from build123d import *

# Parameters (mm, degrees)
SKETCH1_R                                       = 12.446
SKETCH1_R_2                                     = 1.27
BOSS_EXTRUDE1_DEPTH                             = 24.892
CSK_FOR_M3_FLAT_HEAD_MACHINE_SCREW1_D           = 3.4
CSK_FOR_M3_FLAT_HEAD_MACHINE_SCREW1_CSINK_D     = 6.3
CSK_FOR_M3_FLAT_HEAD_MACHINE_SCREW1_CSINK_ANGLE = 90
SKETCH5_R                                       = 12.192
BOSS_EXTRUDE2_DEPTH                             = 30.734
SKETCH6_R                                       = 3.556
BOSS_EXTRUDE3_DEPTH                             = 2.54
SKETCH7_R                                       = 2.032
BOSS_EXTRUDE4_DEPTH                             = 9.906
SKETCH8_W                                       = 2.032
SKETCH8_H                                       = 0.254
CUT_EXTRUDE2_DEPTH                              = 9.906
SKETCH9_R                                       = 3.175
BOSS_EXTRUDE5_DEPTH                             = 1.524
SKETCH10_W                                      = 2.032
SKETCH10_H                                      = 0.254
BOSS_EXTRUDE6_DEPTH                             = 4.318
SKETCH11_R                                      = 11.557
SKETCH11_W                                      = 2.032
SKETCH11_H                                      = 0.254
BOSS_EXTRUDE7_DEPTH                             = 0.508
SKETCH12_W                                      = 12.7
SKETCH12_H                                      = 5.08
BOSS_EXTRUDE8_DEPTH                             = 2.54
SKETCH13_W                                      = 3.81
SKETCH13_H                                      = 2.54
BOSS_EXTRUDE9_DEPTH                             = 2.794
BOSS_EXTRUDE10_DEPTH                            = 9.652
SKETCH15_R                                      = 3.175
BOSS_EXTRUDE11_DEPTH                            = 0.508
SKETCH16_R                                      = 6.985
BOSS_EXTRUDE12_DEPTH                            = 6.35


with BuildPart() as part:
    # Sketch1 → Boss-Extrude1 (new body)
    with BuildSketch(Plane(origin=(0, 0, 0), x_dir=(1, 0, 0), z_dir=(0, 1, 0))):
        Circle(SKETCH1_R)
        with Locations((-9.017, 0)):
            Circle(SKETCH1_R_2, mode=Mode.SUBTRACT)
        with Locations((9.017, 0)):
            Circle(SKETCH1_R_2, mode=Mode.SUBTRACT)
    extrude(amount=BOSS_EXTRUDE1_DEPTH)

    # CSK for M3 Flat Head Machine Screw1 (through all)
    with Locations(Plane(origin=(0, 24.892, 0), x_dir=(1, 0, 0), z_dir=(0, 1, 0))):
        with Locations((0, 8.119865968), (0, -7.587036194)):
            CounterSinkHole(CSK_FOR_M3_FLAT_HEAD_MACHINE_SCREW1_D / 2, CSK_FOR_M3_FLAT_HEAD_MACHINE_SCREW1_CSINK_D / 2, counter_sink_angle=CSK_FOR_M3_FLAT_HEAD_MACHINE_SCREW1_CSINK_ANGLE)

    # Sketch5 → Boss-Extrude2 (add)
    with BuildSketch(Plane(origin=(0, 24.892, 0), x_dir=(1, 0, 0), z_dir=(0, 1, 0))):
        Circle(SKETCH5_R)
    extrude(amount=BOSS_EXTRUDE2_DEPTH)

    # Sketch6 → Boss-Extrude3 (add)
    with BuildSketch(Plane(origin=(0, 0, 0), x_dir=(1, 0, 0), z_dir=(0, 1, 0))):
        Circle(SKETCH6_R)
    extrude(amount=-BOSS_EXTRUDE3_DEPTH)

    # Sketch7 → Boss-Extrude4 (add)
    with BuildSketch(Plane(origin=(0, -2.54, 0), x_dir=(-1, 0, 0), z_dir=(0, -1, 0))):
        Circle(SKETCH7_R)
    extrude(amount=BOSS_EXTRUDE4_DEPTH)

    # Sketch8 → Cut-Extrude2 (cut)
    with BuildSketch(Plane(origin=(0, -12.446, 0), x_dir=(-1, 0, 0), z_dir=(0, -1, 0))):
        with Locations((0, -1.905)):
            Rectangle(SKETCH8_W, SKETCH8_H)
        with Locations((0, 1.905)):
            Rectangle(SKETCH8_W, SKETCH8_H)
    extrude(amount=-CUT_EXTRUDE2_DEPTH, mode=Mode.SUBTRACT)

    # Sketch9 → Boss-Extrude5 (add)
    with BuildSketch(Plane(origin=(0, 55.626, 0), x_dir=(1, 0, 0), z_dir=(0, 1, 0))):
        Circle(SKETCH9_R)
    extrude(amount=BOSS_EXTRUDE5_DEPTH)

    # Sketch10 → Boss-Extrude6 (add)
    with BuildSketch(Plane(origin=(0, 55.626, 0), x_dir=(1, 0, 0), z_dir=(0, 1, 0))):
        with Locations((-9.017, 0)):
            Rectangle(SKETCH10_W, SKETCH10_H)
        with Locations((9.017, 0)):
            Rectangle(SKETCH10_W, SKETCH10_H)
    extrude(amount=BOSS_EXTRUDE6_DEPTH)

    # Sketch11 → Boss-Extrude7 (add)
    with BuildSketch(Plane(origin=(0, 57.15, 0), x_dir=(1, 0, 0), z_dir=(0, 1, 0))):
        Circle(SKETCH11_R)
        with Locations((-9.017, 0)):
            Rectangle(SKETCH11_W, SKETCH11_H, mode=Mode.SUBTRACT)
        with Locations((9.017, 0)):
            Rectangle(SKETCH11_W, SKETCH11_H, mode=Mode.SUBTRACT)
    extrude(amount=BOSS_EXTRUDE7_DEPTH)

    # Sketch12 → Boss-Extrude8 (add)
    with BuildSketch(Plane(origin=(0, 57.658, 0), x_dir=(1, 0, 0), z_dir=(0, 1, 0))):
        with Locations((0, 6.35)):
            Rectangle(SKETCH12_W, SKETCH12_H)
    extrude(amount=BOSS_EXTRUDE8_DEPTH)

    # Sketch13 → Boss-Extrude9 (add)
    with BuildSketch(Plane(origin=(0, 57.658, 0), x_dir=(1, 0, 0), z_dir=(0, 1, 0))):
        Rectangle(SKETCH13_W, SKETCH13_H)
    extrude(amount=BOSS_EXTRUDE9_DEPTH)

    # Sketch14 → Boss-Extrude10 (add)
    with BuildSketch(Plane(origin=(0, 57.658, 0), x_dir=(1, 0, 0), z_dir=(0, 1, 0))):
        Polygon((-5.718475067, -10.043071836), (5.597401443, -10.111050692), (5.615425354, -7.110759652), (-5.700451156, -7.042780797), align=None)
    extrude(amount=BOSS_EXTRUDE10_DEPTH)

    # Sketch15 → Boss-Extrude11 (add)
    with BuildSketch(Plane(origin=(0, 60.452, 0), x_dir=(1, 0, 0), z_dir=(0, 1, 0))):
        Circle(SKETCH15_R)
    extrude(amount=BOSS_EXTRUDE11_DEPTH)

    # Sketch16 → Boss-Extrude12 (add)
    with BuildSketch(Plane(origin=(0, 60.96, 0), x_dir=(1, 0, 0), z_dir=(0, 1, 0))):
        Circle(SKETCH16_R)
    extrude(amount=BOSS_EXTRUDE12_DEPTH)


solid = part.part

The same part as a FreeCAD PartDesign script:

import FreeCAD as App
import Part
import Sketcher

V = App.Vector
Q = App.Units.Quantity


def add_polygon(sketch, points):
    """Adds a closed chain of lines whose ends are joined by coincident constraints."""
    first, n = sketch.GeometryCount, len(points)
    for a, b in zip(points, points[1:] + points[:1]):
        sketch.addGeometry(Part.LineSegment(App.Vector(*a, 0), App.Vector(*b, 0)), False)
    for i in range(n):
        sketch.addConstraint(Sketcher.Constraint("Coincident", first + i, 2, first + (i + 1) % n, 1))

doc = App.newDocument("Part")
params = doc.addObject("Spreadsheet::Sheet", "Params")
for row, (alias, value) in enumerate([
    ("sketch1_diameter", "0.1 in"),
    ("sketch1_diameter2", "0.98 in"),
    ("pad1_length", "0.98 in"),
    ("hole_diameter", "3.4 mm"),
    ("hole_csink_diameter", "6.3 mm"),
    ("sketch3_diameter", "0.96 in"),
    ("pad2_length", "1.21 in"),
    ("sketch4_diameter", "0.28 in"),
    ("pad3_length", "0.1 in"),
    ("sketch5_diameter", "0.16 in"),
    ("pad4_length", "0.39 in"),
    ("sketch6_width", "0.08 in"),
    ("sketch6_height", "0.01 in"),
    ("pocket1_length", "0.39 in"),
    ("sketch7_diameter", "0.25 in"),
    ("pad5_length", "0.06 in"),
    ("sketch8_width", "0.08 in"),
    ("sketch8_height", "0.01 in"),
    ("pad6_length", "0.17 in"),
    ("sketch9_diameter", "0.91 in"),
    ("sketch9_width", "0.08 in"),
    ("sketch9_height", "0.01 in"),
    ("pad7_length", "0.02 in"),
    ("sketch10_width", "0.5 in"),
    ("sketch10_height", "0.2 in"),
    ("pad8_length", "0.1 in"),
    ("sketch11_height", "0.1 in"),
    ("sketch11_width", "0.15 in"),
    ("pad9_length", "0.11 in"),
    ("pad10_length", "0.38 in"),
    ("sketch13_diameter", "0.25 in"),
    ("pad11_length", "0.02 in"),
    ("sketch14_diameter", "0.55 in"),
    ("pad12_length", "0.25 in"),
], start=1):
    params.set(f"A{row}", alias)
    params.set(f"B{row}", "=" + value)
    params.setAlias(f"B{row}", alias)

body = doc.addObject("PartDesign::Body", "Body")

# Sketch on XZ plane
sketch1 = body.newObject("Sketcher::SketchObject", "Sketch")
sketch1.AttachmentSupport = (doc.getObject("XZ_Plane"), [""])
sketch1.MapMode = "FlatFace"
sketch1.addGeometry([
    Part.Circle(V(0, 0, 0), V(0, 0, 1), 12.4),
    Part.Circle(V(-9, 0, 0), V(0, 0, 1), 1.3),
    Part.Circle(V(9, 0, 0), V(0, 0, 1), 1.3),
], False)
sketch1.addConstraint([
    Sketcher.Constraint("Coincident", 0, 3, -1, 1),
    Sketcher.Constraint("Equal", 1, 2),
    Sketcher.Constraint("Symmetric", 1, 3, 2, 3, -1, 1),
    Sketcher.Constraint("PointOnObject", 1, 3, -1),
    Sketcher.Constraint("Diameter", 1, Q("0.1 in")),
    Sketcher.Constraint("Diameter", 0, Q("0.98 in")),
    Sketcher.Constraint("DistanceX", 1, 3, 2, 3, Q("0.71 in")),
])
sketch1.setExpression("Constraints[4]", "Params.sketch1_diameter")
sketch1.setExpression("Constraints[5]", "Params.sketch1_diameter2")
pad1 = body.newObject("PartDesign::Pad", "Pad")
pad1.Profile = sketch1
pad1.setExpression("Length", "Params.pad1_length")
pad1.Reversed = True

# Sketch on XZ plane
sketch2 = body.newObject("Sketcher::SketchObject", "Sketch001")
sketch2.AttachmentSupport = (doc.getObject("XZ_Plane"), [""])
sketch2.MapMode = "FlatFace"
sketch2.AttachmentOffset = App.Placement(V(0, 0, -0.98 * 25.4), App.Rotation())
sketch2.addGeometry([
    Part.Circle(V(0, -8.1, 0), V(0, 0, 1), 1.7),
    Part.Circle(V(0, 7.6, 0), V(0, 0, 1), 1.7),
], False)
sketch2.addConstraint([
    Sketcher.Constraint("Equal", 0, 1),
    Sketcher.Constraint("PointOnObject", 0, 3, -2),
    Sketcher.Constraint("PointOnObject", 1, 3, -2),
    Sketcher.Constraint("Diameter", 0, Q("3.4 mm")),
    Sketcher.Constraint("DistanceY", 0, 3, -1, 1, Q("8.119866 mm")),
    Sketcher.Constraint("DistanceY", -1, 1, 1, 3, Q("7.587036 mm")),
])
doc.recompute()
hole = body.newObject("PartDesign::Hole", "Hole")
hole.Profile = sketch2
hole.ThreadType = "None"
hole.setExpression("Diameter", "Params.hole_diameter")
hole.DepthType = "ThroughAll"
hole.HoleCutType = "Countersink"
hole.setExpression("HoleCutDiameter", "Params.hole_csink_diameter")
hole.HoleCutCountersinkAngle = 90
hole.Reversed = True

# Sketch on XZ plane
sketch3 = body.newObject("Sketcher::SketchObject", "Sketch002")
sketch3.AttachmentSupport = (doc.getObject("XZ_Plane"), [""])
sketch3.MapMode = "FlatFace"
sketch3.AttachmentOffset = App.Placement(V(0, 0, -0.98 * 25.4), App.Rotation())
sketch3.addGeometry(Part.Circle(V(0, 0, 0), V(0, 0, 1), 12), False)
sketch3.addConstraint([
    Sketcher.Constraint("Coincident", 0, 3, -1, 1),
    Sketcher.Constraint("Diameter", 0, Q("0.96 in")),
])
sketch3.setExpression("Constraints[1]", "Params.sketch3_diameter")
pad2 = body.newObject("PartDesign::Pad", "Pad001")
pad2.Profile = sketch3
pad2.setExpression("Length", "Params.pad2_length")
pad2.Reversed = True

# Sketch on XZ plane
sketch4 = body.newObject("Sketcher::SketchObject", "Sketch003")
sketch4.AttachmentSupport = (doc.getObject("XZ_Plane"), [""])
sketch4.MapMode = "FlatFace"
sketch4.addGeometry(Part.Circle(V(0, 0, 0), V(0, 0, 1), 3.6), False)
sketch4.addConstraint([
    Sketcher.Constraint("Coincident", 0, 3, -1, 1),
    Sketcher.Constraint("Diameter", 0, Q("0.28 in")),
])
sketch4.setExpression("Constraints[1]", "Params.sketch4_diameter")
pad3 = body.newObject("PartDesign::Pad", "Pad002")
pad3.Profile = sketch4
pad3.setExpression("Length", "Params.pad3_length")

# Sketch on XZ plane
sketch5 = body.newObject("Sketcher::SketchObject", "Sketch004")
sketch5.AttachmentSupport = (doc.getObject("XZ_Plane"), [""])
sketch5.MapMode = "FlatFace"
sketch5.AttachmentOffset = App.Placement(V(0, 0, 0.1 * 25.4), App.Rotation())
sketch5.addGeometry(Part.Circle(V(0, 0, 0), V(0, 0, 1), 2), False)
sketch5.addConstraint([
    Sketcher.Constraint("Coincident", 0, 3, -1, 1),
    Sketcher.Constraint("Diameter", 0, Q("0.16 in")),
])
sketch5.setExpression("Constraints[1]", "Params.sketch5_diameter")
pad4 = body.newObject("PartDesign::Pad", "Pad003")
pad4.Profile = sketch5
pad4.setExpression("Length", "Params.pad4_length")

# Sketch on XZ plane
sketch6 = body.newObject("Sketcher::SketchObject", "Sketch005")
sketch6.AttachmentSupport = (doc.getObject("XZ_Plane"), [""])
sketch6.MapMode = "FlatFace"
sketch6.AttachmentOffset = App.Placement(V(0, 0, 0.49 * 25.4), App.Rotation())
add_polygon(sketch6, [(1.02, 1.78), (1.02, 2.03), (-1.02, 2.03), (-1.02, 1.78)])  # lines 0-3
add_polygon(sketch6, [(1.02, -2.03), (1.02, -1.78), (-1.02, -1.78), (-1.02, -2.03)])  # lines 4-7
sketch6.addConstraint([
    Sketcher.Constraint("Vertical", 0),
    Sketcher.Constraint("Horizontal", 1),
    Sketcher.Constraint("Vertical", 2),
    Sketcher.Constraint("Horizontal", 3),
    Sketcher.Constraint("Vertical", 4),
    Sketcher.Constraint("Horizontal", 5),
    Sketcher.Constraint("Vertical", 6),
    Sketcher.Constraint("Horizontal", 7),
    Sketcher.Constraint("Symmetric", 2, 2, 4, 2, -1, 1),
    Sketcher.Constraint("Symmetric", 0, 2, 6, 2, -1, 1),
    Sketcher.Constraint("Vertical", 3, 2, 4, 2),
    Sketcher.Constraint("DistanceX", 1, 2, 1, 1, Q("0.08 in")),
    Sketcher.Constraint("DistanceY", 0, 1, 0, 2, Q("0.01 in")),
    Sketcher.Constraint("DistanceY", -1, 1, 0, 2, Q("0.08 in")),
])
sketch6.setExpression("Constraints[19]", "Params.sketch6_width")
sketch6.setExpression("Constraints[20]", "Params.sketch6_height")
pocket1 = body.newObject("PartDesign::Pocket", "Pocket")
pocket1.Profile = sketch6
pocket1.setExpression("Length", "Params.pocket1_length")

# Sketch on XZ plane
sketch7 = body.newObject("Sketcher::SketchObject", "Sketch006")
sketch7.AttachmentSupport = (doc.getObject("XZ_Plane"), [""])
sketch7.MapMode = "FlatFace"
sketch7.AttachmentOffset = App.Placement(V(0, 0, -2.19 * 25.4), App.Rotation())
sketch7.addGeometry(Part.Circle(V(0, 0, 0), V(0, 0, 1), 3.2), False)
sketch7.addConstraint([
    Sketcher.Constraint("Coincident", 0, 3, -1, 1),
    Sketcher.Constraint("Diameter", 0, Q("0.25 in")),
])
sketch7.setExpression("Constraints[1]", "Params.sketch7_diameter")
pad5 = body.newObject("PartDesign::Pad", "Pad004")
pad5.Profile = sketch7
pad5.setExpression("Length", "Params.pad5_length")
pad5.Reversed = True

# Sketch on XZ plane
sketch8 = body.newObject("Sketcher::SketchObject", "Sketch007")
sketch8.AttachmentSupport = (doc.getObject("XZ_Plane"), [""])
sketch8.MapMode = "FlatFace"
sketch8.AttachmentOffset = App.Placement(V(0, 0, -2.19 * 25.4), App.Rotation())
add_polygon(sketch8, [(-10.03, -0.13), (-10.03, 0.13), (-8, 0.13), (-8, -0.13)])  # lines 0-3
add_polygon(sketch8, [(8, -0.13), (8, 0.13), (10.03, 0.13), (10.03, -0.13)])  # lines 4-7
sketch8.addConstraint([
    Sketcher.Constraint("Vertical", 0),
    Sketcher.Constraint("Horizontal", 1),
    Sketcher.Constraint("Vertical", 2),
    Sketcher.Constraint("Horizontal", 3),
    Sketcher.Constraint("Vertical", 4),
    Sketcher.Constraint("Horizontal", 5),
    Sketcher.Constraint("Vertical", 6),
    Sketcher.Constraint("Horizontal", 7),
    Sketcher.Constraint("Symmetric", 2, 2, 4, 2, -1, 1),
    Sketcher.Constraint("Symmetric", 0, 2, 6, 2, -1, 1),
    Sketcher.Constraint("Horizontal", 1, 2, 4, 2),
    Sketcher.Constraint("DistanceX", 1, 1, 1, 2, Q("0.08 in")),
    Sketcher.Constraint("DistanceY", 0, 1, 0, 2, Q("0.01 in")),
    Sketcher.Constraint("DistanceX", 1, 2, 4, 2, Q("0.63 in")),
])
sketch8.setExpression("Constraints[19]", "Params.sketch8_width")
sketch8.setExpression("Constraints[20]", "Params.sketch8_height")
pad6 = body.newObject("PartDesign::Pad", "Pad005")
pad6.Profile = sketch8
pad6.setExpression("Length", "Params.pad6_length")
pad6.Reversed = True

# Sketch on XZ plane
sketch9 = body.newObject("Sketcher::SketchObject", "Sketch008")
sketch9.AttachmentSupport = (doc.getObject("XZ_Plane"), [""])
sketch9.MapMode = "FlatFace"
sketch9.AttachmentOffset = App.Placement(V(0, 0, -2.25 * 25.4), App.Rotation())
sketch9.addGeometry(Part.Circle(V(0, 0, 0), V(0, 0, 1), 11.56), False)  # 0
add_polygon(sketch9, [(-8, 0.13), (-10.03, 0.13), (-10.03, -0.13), (-8, -0.13)])  # lines 1-4
add_polygon(sketch9, [(10.03, 0.13), (8, 0.13), (8, -0.13), (10.03, -0.13)])  # lines 5-8
sketch9.addConstraint([
    Sketcher.Constraint("Horizontal", 1),
    Sketcher.Constraint("Vertical", 2),
    Sketcher.Constraint("Horizontal", 3),
    Sketcher.Constraint("Vertical", 4),
    Sketcher.Constraint("Horizontal", 5),
    Sketcher.Constraint("Vertical", 6),
    Sketcher.Constraint("Horizontal", 7),
    Sketcher.Constraint("Vertical", 8),
    Sketcher.Constraint("Coincident", 0, 3, -1, 1),
    Sketcher.Constraint("Symmetric", 3, 2, 5, 2, -1, 1),
    Sketcher.Constraint("Symmetric", 1, 2, 7, 2, -1, 1),
    Sketcher.Constraint("Horizontal", 4, 2, 5, 2),
    Sketcher.Constraint("Diameter", 0, Q("0.91 in")),
    Sketcher.Constraint("DistanceX", 1, 2, 1, 1, Q("0.08 in")),
    Sketcher.Constraint("DistanceY", 2, 2, 2, 1, Q("0.01 in")),
    Sketcher.Constraint("DistanceX", 4, 2, 5, 2, Q("0.63 in")),
])
sketch9.setExpression("Constraints[20]", "Params.sketch9_diameter")
sketch9.setExpression("Constraints[21]", "Params.sketch9_width")
sketch9.setExpression("Constraints[22]", "Params.sketch9_height")
pad7 = body.newObject("PartDesign::Pad", "Pad006")
pad7.Profile = sketch9
pad7.setExpression("Length", "Params.pad7_length")
pad7.Reversed = True

# Sketch on XZ plane
sketch10 = body.newObject("Sketcher::SketchObject", "Sketch009")
sketch10.AttachmentSupport = (doc.getObject("XZ_Plane"), [""])
sketch10.MapMode = "FlatFace"
sketch10.AttachmentOffset = App.Placement(V(0, 0, -2.27 * 25.4), App.Rotation())
add_polygon(sketch10, [(-6, -9), (-6, -4), (6, -4), (6, -9)])  # lines 0-3
sketch10.addConstraint([
    Sketcher.Constraint("Vertical", 0),
    Sketcher.Constraint("Horizontal", 1),
    Sketcher.Constraint("Vertical", 2),
    Sketcher.Constraint("Horizontal", 3),
    Sketcher.Constraint("DistanceX", 1, 1, 1, 2, Q("0.5 in")),
    Sketcher.Constraint("DistanceY", 0, 1, 0, 2, Q("0.2 in")),
    Sketcher.Constraint("DistanceX", 0, 2, -1, 1, Q("0.25 in")),
    Sketcher.Constraint("DistanceY", 0, 2, -1, 1, Q("0.15 in")),
])
sketch10.setExpression("Constraints[8]", "Params.sketch10_width")
sketch10.setExpression("Constraints[9]", "Params.sketch10_height")
pad8 = body.newObject("PartDesign::Pad", "Pad007")
pad8.Profile = sketch10
pad8.setExpression("Length", "Params.pad8_length")
pad8.Reversed = True

# Sketch on XZ plane
sketch11 = body.newObject("Sketcher::SketchObject", "Sketch010")
sketch11.AttachmentSupport = (doc.getObject("XZ_Plane"), [""])
sketch11.MapMode = "FlatFace"
sketch11.AttachmentOffset = App.Placement(V(0, 0, -2.27 * 25.4), App.Rotation())
add_polygon(sketch11, [(-1.9, -1.3), (-1.9, 1.3), (1.9, 1.3), (1.9, -1.3)])  # lines 0-3
sketch11.addConstraint([
    Sketcher.Constraint("Vertical", 0),
    Sketcher.Constraint("Horizontal", 1),
    Sketcher.Constraint("Vertical", 2),
    Sketcher.Constraint("Horizontal", 3),
    Sketcher.Constraint("Symmetric", 0, 2, 2, 2, -1, 1),
    Sketcher.Constraint("DistanceY", 0, 1, 0, 2, Q("0.1 in")),
    Sketcher.Constraint("DistanceX", 1, 1, 1, 2, Q("0.15 in")),
])
sketch11.setExpression("Constraints[9]", "Params.sketch11_height")
sketch11.setExpression("Constraints[10]", "Params.sketch11_width")
pad9 = body.newObject("PartDesign::Pad", "Pad008")
pad9.Profile = sketch11
pad9.setExpression("Length", "Params.pad9_length")
pad9.Reversed = True

# Sketch on XZ plane
sketch12 = body.newObject("Sketcher::SketchObject", "Sketch011")
sketch12.AttachmentSupport = (doc.getObject("XZ_Plane"), [""])
sketch12.MapMode = "FlatFace"
sketch12.AttachmentOffset = App.Placement(V(0, 0, -2.27 * 25.4), App.Rotation())
add_polygon(sketch12, [(-5.7, 10), (5.6, 10.1), (5.6, 7.1), (-5.7, 7)])  # lines 0-3
sketch12.addConstraint([
    Sketcher.Constraint("Perpendicular", 0, 1),
    Sketcher.Constraint("Perpendicular", 1, 2),
    Sketcher.Constraint("Perpendicular", 2, 3),
    Sketcher.Constraint("DistanceX", -1, 1, 0, 2, Q("5.597401 mm")),
    Sketcher.Constraint("DistanceX", 3, 2, 1, 2, Q("11.3339 mm")),
    Sketcher.Constraint("Distance", 0, Q("11.316081 mm")),
    Sketcher.Constraint("DistanceY", -1, 1, 0, 2, Q("10.111051 mm")),
    Sketcher.Constraint("DistanceY", -1, 1, 1, 2, Q("7.11076 mm")),
])
pad10 = body.newObject("PartDesign::Pad", "Pad009")
pad10.Profile = sketch12
pad10.setExpression("Length", "Params.pad10_length")
pad10.Reversed = True

# Sketch on XZ plane
sketch13 = body.newObject("Sketcher::SketchObject", "Sketch012")
sketch13.AttachmentSupport = (doc.getObject("XZ_Plane"), [""])
sketch13.MapMode = "FlatFace"
sketch13.AttachmentOffset = App.Placement(V(0, 0, -2.38 * 25.4), App.Rotation())
sketch13.addGeometry(Part.Circle(V(0, 0, 0), V(0, 0, 1), 3.2), False)
sketch13.addConstraint([
    Sketcher.Constraint("Coincident", 0, 3, -1, 1),
    Sketcher.Constraint("Diameter", 0, Q("0.25 in")),
])
sketch13.setExpression("Constraints[1]", "Params.sketch13_diameter")
pad11 = body.newObject("PartDesign::Pad", "Pad010")
pad11.Profile = sketch13
pad11.setExpression("Length", "Params.pad11_length")
pad11.Reversed = True

# Sketch on XZ plane
sketch14 = body.newObject("Sketcher::SketchObject", "Sketch013")
sketch14.AttachmentSupport = (doc.getObject("XZ_Plane"), [""])
sketch14.MapMode = "FlatFace"
sketch14.AttachmentOffset = App.Placement(V(0, 0, -2.4 * 25.4), App.Rotation())
sketch14.addGeometry(Part.Circle(V(0, 0, 0), V(0, 0, 1), 7), False)
sketch14.addConstraint([
    Sketcher.Constraint("Coincident", 0, 3, -1, 1),
    Sketcher.Constraint("Diameter", 0, Q("0.55 in")),
])
sketch14.setExpression("Constraints[1]", "Params.sketch14_diameter")
pad12 = body.newObject("PartDesign::Pad", "Pad011")
pad12.Profile = sketch14
pad12.setExpression("Length", "Params.pad12_length")
pad12.Reversed = True

doc.recompute()
